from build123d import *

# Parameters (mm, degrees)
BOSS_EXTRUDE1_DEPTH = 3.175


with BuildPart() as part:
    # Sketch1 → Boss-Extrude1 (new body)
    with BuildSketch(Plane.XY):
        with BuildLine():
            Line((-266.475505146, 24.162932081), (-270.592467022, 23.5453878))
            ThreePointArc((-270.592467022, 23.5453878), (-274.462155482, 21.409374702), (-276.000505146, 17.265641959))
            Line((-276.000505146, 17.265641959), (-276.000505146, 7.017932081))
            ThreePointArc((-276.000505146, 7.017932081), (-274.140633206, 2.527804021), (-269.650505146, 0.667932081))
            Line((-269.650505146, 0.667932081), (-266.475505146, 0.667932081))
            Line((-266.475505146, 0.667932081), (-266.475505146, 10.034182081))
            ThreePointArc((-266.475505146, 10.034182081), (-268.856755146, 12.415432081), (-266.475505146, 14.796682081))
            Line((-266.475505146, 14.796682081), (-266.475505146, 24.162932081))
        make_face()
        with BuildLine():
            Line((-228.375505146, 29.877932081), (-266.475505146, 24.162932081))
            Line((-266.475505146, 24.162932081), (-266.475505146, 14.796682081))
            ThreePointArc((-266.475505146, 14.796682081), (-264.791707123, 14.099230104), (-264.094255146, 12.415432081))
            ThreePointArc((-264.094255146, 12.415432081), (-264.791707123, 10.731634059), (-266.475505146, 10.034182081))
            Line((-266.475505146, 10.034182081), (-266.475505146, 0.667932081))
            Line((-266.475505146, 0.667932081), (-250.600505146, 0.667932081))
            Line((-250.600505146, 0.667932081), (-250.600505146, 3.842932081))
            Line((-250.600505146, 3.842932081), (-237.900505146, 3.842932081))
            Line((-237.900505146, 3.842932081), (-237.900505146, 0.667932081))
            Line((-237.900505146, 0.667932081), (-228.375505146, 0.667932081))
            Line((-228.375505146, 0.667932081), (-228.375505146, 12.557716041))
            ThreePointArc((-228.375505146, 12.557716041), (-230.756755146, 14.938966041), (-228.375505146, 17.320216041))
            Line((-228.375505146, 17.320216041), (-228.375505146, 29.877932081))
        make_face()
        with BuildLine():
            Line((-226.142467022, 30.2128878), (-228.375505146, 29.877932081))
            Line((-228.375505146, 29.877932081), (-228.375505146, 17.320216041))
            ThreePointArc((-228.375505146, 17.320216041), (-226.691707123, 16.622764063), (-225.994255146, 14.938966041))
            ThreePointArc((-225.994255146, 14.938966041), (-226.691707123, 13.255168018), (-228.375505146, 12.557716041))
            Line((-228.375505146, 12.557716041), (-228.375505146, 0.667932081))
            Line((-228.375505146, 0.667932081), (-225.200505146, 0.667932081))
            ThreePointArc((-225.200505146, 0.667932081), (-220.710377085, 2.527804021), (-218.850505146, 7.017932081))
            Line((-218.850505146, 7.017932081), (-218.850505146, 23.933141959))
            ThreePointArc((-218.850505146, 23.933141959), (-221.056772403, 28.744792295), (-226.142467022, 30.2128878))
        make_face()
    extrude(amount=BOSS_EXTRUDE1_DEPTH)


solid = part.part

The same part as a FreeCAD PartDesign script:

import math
import FreeCAD as App
import Part
import Sketcher

V = App.Vector
Q = App.Units.Quantity

doc = App.newDocument("Part")
body = doc.addObject("PartDesign::Body", "Body")

sketch1 = doc.addObject("Sketcher::SketchObject", "Sketch")
body.addObject(sketch1)
sketch1.AttachmentSupport = (doc.XY_Plane, [""])
sketch1.MapMode = "FlatFace"
sketch1.addGeometry(Part.LineSegment(V(-266.5, 24.2, 0), V(-270.6, 23.5, 0)), False)
sketch1.addGeometry(Part.ArcOfCircle(Part.Circle(V(-269.7, 17.3, 0), V(0, 0, 1), 6.3), math.radians(99), math.radians(180)), False)
sketch1.addGeometry(Part.LineSegment(V(-276, 17.3, 0), V(-276, 7, 0)), False)
sketch1.addGeometry(Part.ArcOfCircle(Part.Circle(V(-269.7, 7, 0), V(0, 0, 1), 6.4), math.radians(-180), math.radians(-90)), False)
sketch1.addGeometry(Part.LineSegment(V(-269.7, 0.7, 0), V(-250.6, 0.7, 0)), False)
sketch1.addGeometry(Part.LineSegment(V(-250.6, 0.7, 0), V(-250.6, 3.8, 0)), False)
sketch1.addGeometry(Part.LineSegment(V(-250.6, 3.8, 0), V(-237.9, 3.8, 0)), False)
sketch1.addGeometry(Part.LineSegment(V(-237.9, 3.8, 0), V(-237.9, 0.7, 0)), False)
sketch1.addGeometry(Part.LineSegment(V(-237.9, 0.7, 0), V(-225.2, 0.7, 0)), False)
sketch1.addGeometry(Part.ArcOfCircle(Part.Circle(V(-225.2, 7, 0), V(0, 0, 1), 6.3), math.radians(-90), math.radians(0)), False)
sketch1.addGeometry(Part.LineSegment(V(-218.9, 7, 0), V(-218.9, 23.9, 0)), False)
sketch1.addGeometry(Part.ArcOfCircle(Part.Circle(V(-225.2, 23.9, 0), V(0, 0, 1), 6.3), math.radians(0), math.radians(99)), False)
sketch1.addGeometry(Part.LineSegment(V(-226.1, 30.2, 0), V(-228.4, 29.9, 0)), False)
sketch1.addGeometry(Part.LineSegment(V(-228.4, 29.9, 0), V(-266.5, 24.2, 0)), False)
sketch1.addGeometry(Part.ArcOfCircle(Part.Circle(V(-228.4, 14.9, 0), V(0, 0, 1), 2.4), math.radians(90), math.radians(270)), False)
sketch1.addGeometry(Part.ArcOfCircle(Part.Circle(V(-228.4, 14.9, 0), V(0, 0, 1), 2.4), math.radians(0), math.radians(90)), False)
sketch1.addGeometry(Part.ArcOfCircle(Part.Circle(V(-228.4, 14.9, 0), V(0, 0, 1), 2.4), math.radians(-90), math.radians(0)), False)
sketch1.addGeometry(Part.ArcOfCircle(Part.Circle(V(-266.5, 12.4, 0), V(0, 0, 1), 2.4), math.radians(90), math.radians(270)), False)
sketch1.addGeometry(Part.ArcOfCircle(Part.Circle(V(-266.5, 12.4, 0), V(0, 0, 1), 2.4), math.radians(0), math.radians(90)), False)
sketch1.addGeometry(Part.ArcOfCircle(Part.Circle(V(-266.5, 12.4, 0), V(0, 0, 1), 2.4), math.radians(-90), math.radians(0)), False)
sketch1.addConstraint(Sketcher.Constraint("Tangent", 0, 2, 1, 1))
sketch1.addConstraint(Sketcher.Constraint("Tangent", 1, 2, 2, 1))
sketch1.addConstraint(Sketcher.Constraint("Tangent", 2, 2, 3, 1))
sketch1.addConstraint(Sketcher.Constraint("Tangent", 3, 2, 4, 1))
sketch1.addConstraint(Sketcher.Constraint("Coincident", 4, 2, 5, 1))
sketch1.addConstraint(Sketcher.Constraint("Coincident", 5, 2, 6, 1))
sketch1.addConstraint(Sketcher.Constraint("Coincident", 6, 2, 7, 1))
sketch1.addConstraint(Sketcher.Constraint("Coincident", 7, 2, 8, 1))
sketch1.addConstraint(Sketcher.Constraint("Tangent", 8, 2, 9, 1))
sketch1.addConstraint(Sketcher.Constraint("Tangent", 9, 2, 10, 1))
sketch1.addConstraint(Sketcher.Constraint("Tangent", 10, 2, 11, 1))
sketch1.addConstraint(Sketcher.Constraint("Tangent", 11, 2, 12, 1))
sketch1.addConstraint(Sketcher.Constraint("Coincident", 12, 2, 13, 1))
sketch1.addConstraint(Sketcher.Constraint("Coincident", 13, 2, 0, 1))
sketch1.addConstraint(Sketcher.Constraint("Tangent", 14, 1, 15, 2))
sketch1.addConstraint(Sketcher.Constraint("Tangent", 15, 1, 16, 2))
sketch1.addConstraint(Sketcher.Constraint("Tangent", 16, 1, 14, 2))
sketch1.addConstraint(Sketcher.Constraint("Tangent", 17, 1, 18, 2))
sketch1.addConstraint(Sketcher.Constraint("Tangent", 18, 1, 19, 2))
sketch1.addConstraint(Sketcher.Constraint("Tangent", 19, 1, 17, 2))
sketch1.addConstraint(Sketcher.Constraint("Vertical", 2))
sketch1.addConstraint(Sketcher.Constraint("Horizontal", 4))
sketch1.addConstraint(Sketcher.Constraint("Vertical", 5))
sketch1.addConstraint(Sketcher.Constraint("Horizontal", 6))
sketch1.addConstraint(Sketcher.Constraint("Vertical", 7))
sketch1.addConstraint(Sketcher.Constraint("Horizontal", 8))
sketch1.addConstraint(Sketcher.Constraint("Vertical", 10))
sketch1.addConstraint(Sketcher.Constraint("Equal", 1, 3))
sketch1.addConstraint(Sketcher.Constraint("Equal", 3, 9))
sketch1.addConstraint(Sketcher.Constraint("Equal", 9, 11))
sketch1.addConstraint(Sketcher.Constraint("Equal", 16, 17))
sketch1.addConstraint(Sketcher.Constraint("Parallel", 0, 12))
sketch1.addConstraint(Sketcher.Constraint("Parallel", 12, 13))
sketch1.addConstraint(Sketcher.Constraint("Horizontal", 3, 3, 9, 3))
sketch1.addConstraint(Sketcher.Constraint("Horizontal", 16, 3, 15, 1))
sketch1.addConstraint(Sketcher.Constraint("Horizontal", 19, 3, 18, 1))
sketch1.addConstraint(Sketcher.Constraint("Vertical", 16, 3, 12, 2))
sketch1.addConstraint(Sketcher.Constraint("Vertical", 19, 3, 13, 2))
sketch1.addConstraint(Sketcher.Constraint("Vertical", 12, 2, 14, 1))
sketch1.addConstraint(Sketcher.Constraint("Vertical", 14, 1, 16, 1))
sketch1.addConstraint(Sketcher.Constraint("Vertical", 13, 2, 17, 1))
sketch1.addConstraint(Sketcher.Constraint("Vertical", 17, 1, 19, 1))
sketch1.addConstraint(Sketcher.Constraint("Equal", 6, 8))
sketch1.addConstraint(Sketcher.Constraint("Radius", 1, Q("0.25 in")))
sketch1.addConstraint(Sketcher.Constraint("DistanceX", 6, 1, 6, 2, Q("0.5 in")))
sketch1.addConstraint(Sketcher.Constraint("Radius", 14, Q("0.09375 in")))
sketch1.addConstraint(Sketcher.Constraint("DistanceX", 4, 1, 4, 2, Q("0.75 in")))
sketch1.addConstraint(Sketcher.Constraint("DistanceX", 17, 3, 15, 3, Q("1.5 in")))
sketch1.addConstraint(Sketcher.Constraint("DistanceY", 5, 1, 5, 2, Q("0.125 in")))
sketch1.addConstraint(Sketcher.Constraint("DistanceX", 14, 3, 9, 3, Q("0.125 in")))
sketch1.addConstraint(Sketcher.Constraint("DistanceY", 1, 3, 11, 3, Q("0.2625 in")))
sketch1.addConstraint(Sketcher.Constraint("DistanceY", 3, 3, 17, 3, Q("0.2125 in")))
sketch1.addConstraint(Sketcher.Constraint("DistanceY", 18, 3, 13, 2, Q("0.4625 in")))
sketch1.addConstraint(Sketcher.Constraint("DistanceY", -1, 1, 1, 3, 17.265642))
sketch1.addConstraint(Sketcher.Constraint("DistanceY", 14, 3, 11, 2, 15.273922))
sketch1.addConstraint(Sketcher.Constraint("DistanceX", 1, 3, -1, 1, 269.650505))
pad1 = doc.addObject("PartDesign::Pad", "Pad")
body.addObject(pad1)
pad1.Profile = sketch1
pad1.Length = Q("0.125 in")

doc.recompute()
